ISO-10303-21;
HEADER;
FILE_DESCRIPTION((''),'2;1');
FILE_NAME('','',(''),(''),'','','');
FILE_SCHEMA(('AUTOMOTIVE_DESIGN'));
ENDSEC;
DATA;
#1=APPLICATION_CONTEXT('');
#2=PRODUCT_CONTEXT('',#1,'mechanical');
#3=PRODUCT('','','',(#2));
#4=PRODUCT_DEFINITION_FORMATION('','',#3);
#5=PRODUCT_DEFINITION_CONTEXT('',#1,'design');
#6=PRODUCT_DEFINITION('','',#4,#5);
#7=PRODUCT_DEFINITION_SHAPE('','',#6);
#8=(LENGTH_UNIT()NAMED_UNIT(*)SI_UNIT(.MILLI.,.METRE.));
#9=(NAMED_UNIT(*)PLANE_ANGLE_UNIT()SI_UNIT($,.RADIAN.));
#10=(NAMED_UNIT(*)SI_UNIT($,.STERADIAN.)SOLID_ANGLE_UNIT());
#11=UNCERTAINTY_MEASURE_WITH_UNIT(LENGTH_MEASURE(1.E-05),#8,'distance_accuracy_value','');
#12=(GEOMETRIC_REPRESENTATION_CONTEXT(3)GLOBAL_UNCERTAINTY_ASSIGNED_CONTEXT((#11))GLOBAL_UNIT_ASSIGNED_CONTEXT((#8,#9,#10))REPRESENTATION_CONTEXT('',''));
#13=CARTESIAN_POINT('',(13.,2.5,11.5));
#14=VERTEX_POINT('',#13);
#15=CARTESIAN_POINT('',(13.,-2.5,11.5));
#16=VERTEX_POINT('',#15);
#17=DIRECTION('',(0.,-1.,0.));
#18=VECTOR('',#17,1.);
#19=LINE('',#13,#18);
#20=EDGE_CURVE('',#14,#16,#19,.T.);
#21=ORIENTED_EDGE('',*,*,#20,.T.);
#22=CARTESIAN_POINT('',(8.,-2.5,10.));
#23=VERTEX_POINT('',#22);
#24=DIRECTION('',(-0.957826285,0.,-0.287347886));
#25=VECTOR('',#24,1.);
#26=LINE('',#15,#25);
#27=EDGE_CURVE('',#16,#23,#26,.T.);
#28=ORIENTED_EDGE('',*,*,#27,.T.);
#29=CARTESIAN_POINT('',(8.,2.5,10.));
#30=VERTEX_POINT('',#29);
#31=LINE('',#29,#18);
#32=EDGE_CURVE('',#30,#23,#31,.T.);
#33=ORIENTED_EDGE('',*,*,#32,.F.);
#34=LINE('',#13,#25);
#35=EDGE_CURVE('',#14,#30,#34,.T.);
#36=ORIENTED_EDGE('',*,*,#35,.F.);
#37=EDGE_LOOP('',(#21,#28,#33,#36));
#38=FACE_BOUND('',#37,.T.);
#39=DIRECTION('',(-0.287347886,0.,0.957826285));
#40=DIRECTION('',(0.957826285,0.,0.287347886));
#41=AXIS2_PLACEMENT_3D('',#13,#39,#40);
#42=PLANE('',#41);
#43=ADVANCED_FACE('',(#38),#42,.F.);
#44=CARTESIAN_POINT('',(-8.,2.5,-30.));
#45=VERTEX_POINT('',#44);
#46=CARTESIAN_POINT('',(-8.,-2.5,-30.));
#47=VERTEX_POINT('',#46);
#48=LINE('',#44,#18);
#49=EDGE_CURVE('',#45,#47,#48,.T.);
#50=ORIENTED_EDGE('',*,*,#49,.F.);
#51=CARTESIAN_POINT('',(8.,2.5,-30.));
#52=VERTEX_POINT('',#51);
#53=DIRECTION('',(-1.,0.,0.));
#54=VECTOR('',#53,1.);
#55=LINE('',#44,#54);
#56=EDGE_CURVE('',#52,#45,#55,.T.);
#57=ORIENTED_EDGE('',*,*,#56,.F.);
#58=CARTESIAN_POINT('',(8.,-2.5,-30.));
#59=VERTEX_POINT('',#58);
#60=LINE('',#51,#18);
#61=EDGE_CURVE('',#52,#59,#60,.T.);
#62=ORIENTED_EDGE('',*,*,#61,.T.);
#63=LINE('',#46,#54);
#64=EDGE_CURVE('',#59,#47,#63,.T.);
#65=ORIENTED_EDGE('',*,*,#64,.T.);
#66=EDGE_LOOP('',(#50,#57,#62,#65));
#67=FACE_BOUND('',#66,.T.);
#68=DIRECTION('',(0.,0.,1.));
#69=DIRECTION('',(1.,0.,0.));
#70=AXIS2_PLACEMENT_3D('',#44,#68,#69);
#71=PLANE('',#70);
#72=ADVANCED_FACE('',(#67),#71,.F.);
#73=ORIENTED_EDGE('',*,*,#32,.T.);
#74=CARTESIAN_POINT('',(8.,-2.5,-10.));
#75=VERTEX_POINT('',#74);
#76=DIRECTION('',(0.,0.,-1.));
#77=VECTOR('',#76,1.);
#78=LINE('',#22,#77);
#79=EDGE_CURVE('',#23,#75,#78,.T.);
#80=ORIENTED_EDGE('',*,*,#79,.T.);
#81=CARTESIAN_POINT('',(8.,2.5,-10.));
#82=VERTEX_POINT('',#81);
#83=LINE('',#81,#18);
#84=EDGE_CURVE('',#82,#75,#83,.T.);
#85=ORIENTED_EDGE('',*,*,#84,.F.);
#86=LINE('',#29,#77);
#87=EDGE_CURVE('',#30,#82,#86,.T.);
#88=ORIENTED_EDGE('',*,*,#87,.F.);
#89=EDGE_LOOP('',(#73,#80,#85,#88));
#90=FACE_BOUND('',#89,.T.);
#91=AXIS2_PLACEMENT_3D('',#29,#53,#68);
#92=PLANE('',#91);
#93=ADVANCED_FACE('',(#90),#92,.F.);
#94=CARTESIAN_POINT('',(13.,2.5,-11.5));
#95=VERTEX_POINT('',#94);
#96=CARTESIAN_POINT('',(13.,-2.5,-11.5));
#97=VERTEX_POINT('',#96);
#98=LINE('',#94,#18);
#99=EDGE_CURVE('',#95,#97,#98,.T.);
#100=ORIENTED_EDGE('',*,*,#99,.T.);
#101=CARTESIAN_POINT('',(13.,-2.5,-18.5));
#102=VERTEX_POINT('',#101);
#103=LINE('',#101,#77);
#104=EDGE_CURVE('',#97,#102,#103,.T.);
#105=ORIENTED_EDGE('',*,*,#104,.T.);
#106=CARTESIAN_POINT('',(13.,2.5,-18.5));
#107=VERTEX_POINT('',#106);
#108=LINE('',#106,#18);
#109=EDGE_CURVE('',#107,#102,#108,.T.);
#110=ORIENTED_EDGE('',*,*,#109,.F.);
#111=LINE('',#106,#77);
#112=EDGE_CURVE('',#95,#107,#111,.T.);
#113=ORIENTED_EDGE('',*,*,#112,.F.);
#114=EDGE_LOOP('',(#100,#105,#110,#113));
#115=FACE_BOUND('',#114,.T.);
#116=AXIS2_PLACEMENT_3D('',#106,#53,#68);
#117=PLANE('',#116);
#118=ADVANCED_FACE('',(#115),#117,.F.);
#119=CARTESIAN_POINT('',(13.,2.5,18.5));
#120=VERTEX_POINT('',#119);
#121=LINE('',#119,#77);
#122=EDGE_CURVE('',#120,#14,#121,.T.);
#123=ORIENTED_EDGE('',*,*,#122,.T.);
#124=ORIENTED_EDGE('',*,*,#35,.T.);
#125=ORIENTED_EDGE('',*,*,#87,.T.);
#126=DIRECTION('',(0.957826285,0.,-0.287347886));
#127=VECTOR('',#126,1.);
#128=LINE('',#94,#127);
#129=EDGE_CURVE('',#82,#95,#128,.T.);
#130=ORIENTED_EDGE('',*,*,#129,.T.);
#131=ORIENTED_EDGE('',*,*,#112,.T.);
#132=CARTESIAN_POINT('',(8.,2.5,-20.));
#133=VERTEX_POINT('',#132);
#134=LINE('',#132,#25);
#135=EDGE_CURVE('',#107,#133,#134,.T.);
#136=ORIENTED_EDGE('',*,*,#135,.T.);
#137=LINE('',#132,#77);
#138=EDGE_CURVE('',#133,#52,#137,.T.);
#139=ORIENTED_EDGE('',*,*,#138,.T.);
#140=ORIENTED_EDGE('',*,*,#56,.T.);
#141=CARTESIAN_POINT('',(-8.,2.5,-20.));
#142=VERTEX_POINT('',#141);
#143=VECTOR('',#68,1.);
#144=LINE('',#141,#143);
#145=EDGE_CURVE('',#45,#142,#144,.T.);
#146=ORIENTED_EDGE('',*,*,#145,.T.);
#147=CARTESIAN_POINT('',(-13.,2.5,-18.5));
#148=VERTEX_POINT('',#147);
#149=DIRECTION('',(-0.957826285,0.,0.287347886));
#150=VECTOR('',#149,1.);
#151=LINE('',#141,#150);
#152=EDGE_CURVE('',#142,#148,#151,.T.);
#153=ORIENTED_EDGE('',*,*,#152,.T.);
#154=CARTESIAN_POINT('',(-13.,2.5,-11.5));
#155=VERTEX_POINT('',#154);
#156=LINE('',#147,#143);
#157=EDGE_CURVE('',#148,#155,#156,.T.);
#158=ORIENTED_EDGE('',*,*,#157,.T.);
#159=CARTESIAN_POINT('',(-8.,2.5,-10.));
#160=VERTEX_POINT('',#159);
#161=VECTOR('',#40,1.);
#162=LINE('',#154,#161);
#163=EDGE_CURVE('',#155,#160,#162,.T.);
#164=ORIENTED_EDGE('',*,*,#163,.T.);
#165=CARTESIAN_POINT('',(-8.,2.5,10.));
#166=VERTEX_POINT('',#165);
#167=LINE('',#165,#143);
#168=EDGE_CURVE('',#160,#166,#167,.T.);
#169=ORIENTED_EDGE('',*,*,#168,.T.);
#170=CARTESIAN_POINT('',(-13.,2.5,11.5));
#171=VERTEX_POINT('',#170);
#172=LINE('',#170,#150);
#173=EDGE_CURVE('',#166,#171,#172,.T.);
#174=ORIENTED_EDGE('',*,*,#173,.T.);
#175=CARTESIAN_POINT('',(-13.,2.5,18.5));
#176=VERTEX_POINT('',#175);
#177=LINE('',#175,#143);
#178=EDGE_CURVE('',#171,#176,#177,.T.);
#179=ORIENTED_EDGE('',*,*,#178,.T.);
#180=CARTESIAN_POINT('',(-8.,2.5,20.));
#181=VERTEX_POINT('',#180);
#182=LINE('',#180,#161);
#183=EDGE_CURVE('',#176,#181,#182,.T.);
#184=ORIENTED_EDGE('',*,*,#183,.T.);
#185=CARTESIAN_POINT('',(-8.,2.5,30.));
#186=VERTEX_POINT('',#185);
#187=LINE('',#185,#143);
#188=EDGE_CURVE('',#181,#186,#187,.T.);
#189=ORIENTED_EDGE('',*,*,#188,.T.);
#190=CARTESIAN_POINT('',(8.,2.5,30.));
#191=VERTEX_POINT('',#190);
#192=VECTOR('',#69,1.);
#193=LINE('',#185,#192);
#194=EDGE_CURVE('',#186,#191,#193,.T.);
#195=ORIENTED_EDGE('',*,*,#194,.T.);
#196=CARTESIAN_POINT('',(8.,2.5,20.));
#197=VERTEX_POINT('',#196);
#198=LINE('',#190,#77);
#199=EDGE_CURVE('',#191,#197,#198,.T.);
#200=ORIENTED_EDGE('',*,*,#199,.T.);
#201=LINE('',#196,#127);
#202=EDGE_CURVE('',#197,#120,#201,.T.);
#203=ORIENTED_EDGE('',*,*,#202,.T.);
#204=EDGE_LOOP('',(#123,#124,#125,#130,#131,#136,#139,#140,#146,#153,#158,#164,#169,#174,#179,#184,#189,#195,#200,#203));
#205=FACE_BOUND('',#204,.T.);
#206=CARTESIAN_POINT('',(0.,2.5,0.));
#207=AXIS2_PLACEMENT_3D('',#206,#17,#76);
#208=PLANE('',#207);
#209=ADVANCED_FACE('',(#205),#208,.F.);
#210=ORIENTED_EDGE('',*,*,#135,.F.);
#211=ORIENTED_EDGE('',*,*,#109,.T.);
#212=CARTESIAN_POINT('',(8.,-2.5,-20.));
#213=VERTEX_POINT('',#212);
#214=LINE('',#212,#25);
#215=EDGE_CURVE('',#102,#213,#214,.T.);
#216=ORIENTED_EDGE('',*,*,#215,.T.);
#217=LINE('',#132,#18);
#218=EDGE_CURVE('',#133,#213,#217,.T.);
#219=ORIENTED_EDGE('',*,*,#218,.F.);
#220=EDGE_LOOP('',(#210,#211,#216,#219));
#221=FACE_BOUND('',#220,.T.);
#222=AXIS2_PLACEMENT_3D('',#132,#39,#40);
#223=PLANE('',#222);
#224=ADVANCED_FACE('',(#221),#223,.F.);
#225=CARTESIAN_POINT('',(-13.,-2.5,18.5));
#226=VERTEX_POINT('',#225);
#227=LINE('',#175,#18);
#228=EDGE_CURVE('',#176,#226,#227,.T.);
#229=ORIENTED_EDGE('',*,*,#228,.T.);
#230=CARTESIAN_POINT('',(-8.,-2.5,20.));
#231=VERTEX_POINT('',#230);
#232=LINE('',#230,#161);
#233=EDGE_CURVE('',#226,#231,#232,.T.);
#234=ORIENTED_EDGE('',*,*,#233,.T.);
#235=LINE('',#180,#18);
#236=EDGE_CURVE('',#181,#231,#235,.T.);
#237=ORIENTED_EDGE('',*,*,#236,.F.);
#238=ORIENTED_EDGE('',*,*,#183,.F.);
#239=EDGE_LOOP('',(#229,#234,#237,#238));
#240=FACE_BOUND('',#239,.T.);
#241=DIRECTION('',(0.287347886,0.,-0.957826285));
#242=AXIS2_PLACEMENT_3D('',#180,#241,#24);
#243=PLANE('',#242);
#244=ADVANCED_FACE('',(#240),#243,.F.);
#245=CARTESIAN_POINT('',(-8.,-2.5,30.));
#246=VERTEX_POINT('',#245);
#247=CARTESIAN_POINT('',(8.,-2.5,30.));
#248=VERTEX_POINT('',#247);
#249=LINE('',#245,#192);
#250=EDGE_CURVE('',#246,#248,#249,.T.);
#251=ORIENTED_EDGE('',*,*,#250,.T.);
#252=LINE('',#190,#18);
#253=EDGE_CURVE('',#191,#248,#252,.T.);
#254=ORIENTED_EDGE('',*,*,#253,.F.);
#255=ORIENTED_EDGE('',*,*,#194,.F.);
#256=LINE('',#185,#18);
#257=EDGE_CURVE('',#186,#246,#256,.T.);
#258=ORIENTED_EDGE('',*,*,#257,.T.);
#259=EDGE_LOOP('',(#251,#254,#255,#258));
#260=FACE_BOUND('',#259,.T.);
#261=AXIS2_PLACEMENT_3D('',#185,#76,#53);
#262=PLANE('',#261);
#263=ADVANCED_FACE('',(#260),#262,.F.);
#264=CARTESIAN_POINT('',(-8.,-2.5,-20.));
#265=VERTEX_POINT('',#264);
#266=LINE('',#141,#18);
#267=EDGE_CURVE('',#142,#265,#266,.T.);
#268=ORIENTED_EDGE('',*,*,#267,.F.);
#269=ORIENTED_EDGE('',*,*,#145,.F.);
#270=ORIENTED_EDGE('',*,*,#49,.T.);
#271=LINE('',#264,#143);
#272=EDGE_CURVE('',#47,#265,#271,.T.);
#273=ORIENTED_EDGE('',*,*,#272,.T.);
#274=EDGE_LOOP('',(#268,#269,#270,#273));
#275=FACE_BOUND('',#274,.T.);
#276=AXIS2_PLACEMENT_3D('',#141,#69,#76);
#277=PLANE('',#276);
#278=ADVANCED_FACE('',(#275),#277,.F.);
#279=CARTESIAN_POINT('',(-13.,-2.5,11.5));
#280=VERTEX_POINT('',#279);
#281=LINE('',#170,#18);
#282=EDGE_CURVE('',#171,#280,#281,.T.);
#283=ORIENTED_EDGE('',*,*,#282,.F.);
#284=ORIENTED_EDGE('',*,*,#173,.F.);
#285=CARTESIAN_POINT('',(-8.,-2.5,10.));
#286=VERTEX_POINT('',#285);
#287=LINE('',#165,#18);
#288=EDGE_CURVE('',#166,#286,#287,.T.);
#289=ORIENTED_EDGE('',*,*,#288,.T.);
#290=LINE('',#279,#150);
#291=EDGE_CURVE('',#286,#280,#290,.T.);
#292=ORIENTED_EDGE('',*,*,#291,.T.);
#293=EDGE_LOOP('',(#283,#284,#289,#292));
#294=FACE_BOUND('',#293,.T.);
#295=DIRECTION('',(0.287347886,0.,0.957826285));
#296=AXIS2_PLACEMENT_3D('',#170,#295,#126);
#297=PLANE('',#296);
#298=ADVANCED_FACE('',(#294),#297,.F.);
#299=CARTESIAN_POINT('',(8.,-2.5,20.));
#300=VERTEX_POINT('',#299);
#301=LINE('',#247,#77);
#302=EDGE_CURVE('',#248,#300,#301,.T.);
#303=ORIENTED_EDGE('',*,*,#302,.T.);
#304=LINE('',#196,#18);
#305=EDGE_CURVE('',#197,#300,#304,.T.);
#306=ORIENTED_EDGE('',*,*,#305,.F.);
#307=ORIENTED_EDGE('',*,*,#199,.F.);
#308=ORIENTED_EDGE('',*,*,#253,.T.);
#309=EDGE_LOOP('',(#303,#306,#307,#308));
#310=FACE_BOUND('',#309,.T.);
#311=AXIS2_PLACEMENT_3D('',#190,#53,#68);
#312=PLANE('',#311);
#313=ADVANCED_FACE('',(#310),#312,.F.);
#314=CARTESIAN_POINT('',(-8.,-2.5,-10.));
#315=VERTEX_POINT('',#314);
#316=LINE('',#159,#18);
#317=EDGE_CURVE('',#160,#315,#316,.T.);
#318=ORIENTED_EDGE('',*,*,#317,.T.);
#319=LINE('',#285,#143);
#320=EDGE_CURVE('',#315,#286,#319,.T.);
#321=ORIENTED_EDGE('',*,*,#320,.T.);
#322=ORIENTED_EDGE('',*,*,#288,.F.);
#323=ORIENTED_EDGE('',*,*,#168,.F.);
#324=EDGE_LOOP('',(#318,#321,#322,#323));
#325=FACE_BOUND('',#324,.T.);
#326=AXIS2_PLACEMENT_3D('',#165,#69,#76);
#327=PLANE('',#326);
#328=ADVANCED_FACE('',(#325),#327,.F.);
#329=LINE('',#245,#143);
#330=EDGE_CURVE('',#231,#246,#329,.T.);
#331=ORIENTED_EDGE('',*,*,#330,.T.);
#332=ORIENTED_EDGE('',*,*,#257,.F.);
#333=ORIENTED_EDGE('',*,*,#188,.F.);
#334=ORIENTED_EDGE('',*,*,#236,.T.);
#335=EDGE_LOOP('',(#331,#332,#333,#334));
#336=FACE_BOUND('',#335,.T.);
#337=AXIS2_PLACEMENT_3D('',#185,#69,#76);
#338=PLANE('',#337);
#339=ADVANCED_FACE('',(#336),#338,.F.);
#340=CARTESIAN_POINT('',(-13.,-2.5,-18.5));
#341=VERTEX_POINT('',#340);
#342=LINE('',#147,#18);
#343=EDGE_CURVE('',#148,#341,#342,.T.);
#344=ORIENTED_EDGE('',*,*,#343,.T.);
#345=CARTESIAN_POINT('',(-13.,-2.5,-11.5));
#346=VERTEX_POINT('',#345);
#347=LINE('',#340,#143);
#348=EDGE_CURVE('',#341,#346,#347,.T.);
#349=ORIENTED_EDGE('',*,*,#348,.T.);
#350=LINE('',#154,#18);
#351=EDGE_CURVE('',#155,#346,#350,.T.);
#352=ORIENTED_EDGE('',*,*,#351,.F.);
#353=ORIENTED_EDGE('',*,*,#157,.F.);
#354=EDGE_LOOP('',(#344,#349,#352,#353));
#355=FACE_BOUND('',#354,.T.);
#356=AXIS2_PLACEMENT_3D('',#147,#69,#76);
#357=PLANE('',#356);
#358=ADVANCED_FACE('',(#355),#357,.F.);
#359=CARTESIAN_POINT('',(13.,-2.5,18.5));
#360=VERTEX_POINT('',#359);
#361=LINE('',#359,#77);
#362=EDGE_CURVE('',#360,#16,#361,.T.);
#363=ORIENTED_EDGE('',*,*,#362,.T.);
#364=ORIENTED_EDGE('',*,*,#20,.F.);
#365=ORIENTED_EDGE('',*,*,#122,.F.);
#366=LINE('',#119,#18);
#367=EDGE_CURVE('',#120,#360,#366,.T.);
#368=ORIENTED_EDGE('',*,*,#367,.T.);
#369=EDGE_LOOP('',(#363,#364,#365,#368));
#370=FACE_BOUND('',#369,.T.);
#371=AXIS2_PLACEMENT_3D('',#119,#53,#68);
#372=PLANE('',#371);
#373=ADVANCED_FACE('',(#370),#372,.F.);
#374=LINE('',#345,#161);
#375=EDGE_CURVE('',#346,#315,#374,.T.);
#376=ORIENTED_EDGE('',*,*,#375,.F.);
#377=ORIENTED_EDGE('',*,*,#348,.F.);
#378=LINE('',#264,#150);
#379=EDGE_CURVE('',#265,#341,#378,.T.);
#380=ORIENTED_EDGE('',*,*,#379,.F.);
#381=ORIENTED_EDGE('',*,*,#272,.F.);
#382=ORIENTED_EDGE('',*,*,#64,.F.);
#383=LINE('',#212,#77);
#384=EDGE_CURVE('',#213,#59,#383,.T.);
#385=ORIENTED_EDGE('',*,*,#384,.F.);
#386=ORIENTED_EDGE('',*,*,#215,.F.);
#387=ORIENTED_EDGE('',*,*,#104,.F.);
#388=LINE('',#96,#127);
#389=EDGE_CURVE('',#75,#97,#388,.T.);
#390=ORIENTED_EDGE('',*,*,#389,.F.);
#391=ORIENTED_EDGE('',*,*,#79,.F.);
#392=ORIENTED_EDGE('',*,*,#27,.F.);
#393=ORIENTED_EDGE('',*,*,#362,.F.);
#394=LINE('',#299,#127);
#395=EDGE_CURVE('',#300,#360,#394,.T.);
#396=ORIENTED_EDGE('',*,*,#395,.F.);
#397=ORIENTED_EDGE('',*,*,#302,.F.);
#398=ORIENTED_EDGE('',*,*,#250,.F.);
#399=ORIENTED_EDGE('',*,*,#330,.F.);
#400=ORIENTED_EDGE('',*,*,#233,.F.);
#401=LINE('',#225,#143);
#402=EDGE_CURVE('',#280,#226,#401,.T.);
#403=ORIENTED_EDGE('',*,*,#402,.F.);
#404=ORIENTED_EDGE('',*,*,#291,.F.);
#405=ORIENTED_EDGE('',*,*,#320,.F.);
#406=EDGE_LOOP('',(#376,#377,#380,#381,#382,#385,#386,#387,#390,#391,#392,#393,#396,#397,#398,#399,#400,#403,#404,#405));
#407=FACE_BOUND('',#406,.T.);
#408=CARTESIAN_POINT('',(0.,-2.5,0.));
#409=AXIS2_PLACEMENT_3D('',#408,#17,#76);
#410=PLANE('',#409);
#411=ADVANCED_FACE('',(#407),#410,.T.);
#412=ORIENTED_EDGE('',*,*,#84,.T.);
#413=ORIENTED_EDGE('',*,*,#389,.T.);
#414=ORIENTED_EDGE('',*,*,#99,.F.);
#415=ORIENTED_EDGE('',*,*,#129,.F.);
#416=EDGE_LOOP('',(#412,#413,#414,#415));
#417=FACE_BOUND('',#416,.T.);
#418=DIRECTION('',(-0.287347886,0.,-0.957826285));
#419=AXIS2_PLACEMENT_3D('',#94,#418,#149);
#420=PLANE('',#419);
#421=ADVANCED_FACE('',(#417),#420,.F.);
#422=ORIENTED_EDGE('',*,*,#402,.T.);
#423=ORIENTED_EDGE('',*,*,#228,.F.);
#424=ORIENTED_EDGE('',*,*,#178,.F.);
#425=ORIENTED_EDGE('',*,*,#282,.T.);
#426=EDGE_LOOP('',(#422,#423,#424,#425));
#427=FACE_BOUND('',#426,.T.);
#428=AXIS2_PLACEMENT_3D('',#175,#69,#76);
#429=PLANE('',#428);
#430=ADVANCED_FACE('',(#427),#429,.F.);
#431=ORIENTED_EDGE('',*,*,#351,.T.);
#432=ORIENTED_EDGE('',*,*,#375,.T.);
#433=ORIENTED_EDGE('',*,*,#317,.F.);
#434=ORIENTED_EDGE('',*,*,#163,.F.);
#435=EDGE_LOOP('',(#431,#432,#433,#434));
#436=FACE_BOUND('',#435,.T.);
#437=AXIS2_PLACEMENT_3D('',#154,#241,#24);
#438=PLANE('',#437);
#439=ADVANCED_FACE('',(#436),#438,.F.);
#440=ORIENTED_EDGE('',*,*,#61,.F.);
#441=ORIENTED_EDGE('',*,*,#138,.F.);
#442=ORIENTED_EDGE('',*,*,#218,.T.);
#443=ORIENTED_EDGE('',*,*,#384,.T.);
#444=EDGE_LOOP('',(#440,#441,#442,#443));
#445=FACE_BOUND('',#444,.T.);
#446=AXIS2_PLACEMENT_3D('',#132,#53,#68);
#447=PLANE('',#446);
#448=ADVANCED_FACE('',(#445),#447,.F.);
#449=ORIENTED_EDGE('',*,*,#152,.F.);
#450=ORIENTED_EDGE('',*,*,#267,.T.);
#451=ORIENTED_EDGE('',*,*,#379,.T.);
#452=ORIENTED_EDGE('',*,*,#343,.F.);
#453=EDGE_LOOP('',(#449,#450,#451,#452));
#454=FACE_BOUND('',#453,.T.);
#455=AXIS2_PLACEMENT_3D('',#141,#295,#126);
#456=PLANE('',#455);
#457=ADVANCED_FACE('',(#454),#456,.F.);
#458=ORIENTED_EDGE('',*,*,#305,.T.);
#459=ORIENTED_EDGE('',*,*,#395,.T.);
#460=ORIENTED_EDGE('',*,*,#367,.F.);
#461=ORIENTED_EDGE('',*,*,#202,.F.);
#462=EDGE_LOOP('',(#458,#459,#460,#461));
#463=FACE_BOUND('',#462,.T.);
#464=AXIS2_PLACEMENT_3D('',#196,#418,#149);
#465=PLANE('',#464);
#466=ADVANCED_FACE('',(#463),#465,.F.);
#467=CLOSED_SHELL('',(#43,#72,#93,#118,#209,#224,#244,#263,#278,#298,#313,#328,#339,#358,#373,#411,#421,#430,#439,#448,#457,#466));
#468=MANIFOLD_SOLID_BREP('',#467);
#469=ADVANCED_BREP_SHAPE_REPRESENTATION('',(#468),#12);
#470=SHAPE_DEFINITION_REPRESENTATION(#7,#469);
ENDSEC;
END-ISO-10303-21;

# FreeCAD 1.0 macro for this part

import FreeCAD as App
import Part
import Sketcher
from FreeCAD import Vector


def add_polygon(sketch, points):
    """Adds a closed chain of lines whose ends are joined by coincident constraints."""
    first, n = sketch.GeometryCount, len(points)
    for a, b in zip(points, points[1:] + points[:1]):
        sketch.addGeometry(Part.LineSegment(App.Vector(*a, 0), App.Vector(*b, 0)), False)
    for i in range(n):
        sketch.addConstraint(Sketcher.Constraint("Coincident", first + i, 2, first + (i + 1) % n, 1))

doc = App.newDocument("Part")
body = doc.addObject("PartDesign::Body", "Body")

sketch1 = body.newObject("Sketcher::SketchObject", "Sketch")
sketch1.AttachmentSupport = (doc.getObject("XZ_Plane"), [""])
sketch1.MapMode = "FlatFace"
add_polygon(sketch1, [(-8, 30), (8, 30), (8, 20), (13, 18), (13, 12), (8, 10), (8, -10), (13, -12), (13, -18), (8, -20), (8, -30), (-8, -30), (-8, -20), (-13, -18), (-13, -12), (-8, -10), (-8, 10), (-13, 12), (-13, 18), (-8, 20)])
sketch1.addConstraint(Sketcher.Constraint("Horizontal", 0))
sketch1.addConstraint(Sketcher.Constraint("Vertical", 1))
sketch1.addConstraint(Sketcher.Constraint("Vertical", 3))
sketch1.addConstraint(Sketcher.Constraint("Vertical", 5))
sketch1.addConstraint(Sketcher.Constraint("Vertical", 7))
sketch1.addConstraint(Sketcher.Constraint("Vertical", 9))
sketch1.addConstraint(Sketcher.Constraint("Horizontal", 10))
sketch1.addConstraint(Sketcher.Constraint("Vertical", 11))
sketch1.addConstraint(Sketcher.Constraint("Vertical", 13))
sketch1.addConstraint(Sketcher.Constraint("Vertical", 15))
sketch1.addConstraint(Sketcher.Constraint("Vertical", 17))
sketch1.addConstraint(Sketcher.Constraint("Vertical", 19))
sketch1.addConstraint(Sketcher.Constraint("Symmetric", 0, 2, 10, 2, -1, 1))
sketch1.addConstraint(Sketcher.Constraint("Symmetric", 2, 2, 12, 2, -1, 1))
sketch1.addConstraint(Sketcher.Constraint("Symmetric", 4, 2, 14, 2, -1, 1))
sketch1.addConstraint(Sketcher.Constraint("Symmetric", 6, 2, 16, 2, -1, 1))
sketch1.addConstraint(Sketcher.Constraint("Symmetric", 8, 2, 18, 2, -1, 1))
sketch1.addConstraint(Sketcher.Constraint("Symmetric", 8, 2, 11, 2, -2))
sketch1.addConstraint(Sketcher.Constraint("Symmetric", 7, 2, 12, 2, -2))
sketch1.addConstraint(Sketcher.Constraint("Parallel", 2, 6))
sketch1.addConstraint(Sketcher.Constraint("Parallel", 4, 8))
sketch1.addConstraint(Sketcher.Constraint("Parallel", 6, 12))
sketch1.addConstraint(Sketcher.Constraint("Parallel", 8, 14))
sketch1.addConstraint(Sketcher.Constraint("Parallel", 12, 16))
sketch1.addConstraint(Sketcher.Constraint("Parallel", 14, 18))
sketch1.addConstraint(Sketcher.Constraint("Horizontal", 6, 2, 13, 2))
sketch1.addConstraint(Sketcher.Constraint("Vertical", 1, 2, 4, 2))
sketch1.addConstraint(Sketcher.Constraint("DistanceX", 0, 1, 0, 2, 16.0))
sketch1.addConstraint(Sketcher.Constraint("DistanceY", 1, 2, 1, 1, 10.0))
sketch1.addConstraint(Sketcher.Constraint("DistanceY", 3, 2, 3, 1, 7.0))
sketch1.addConstraint(Sketcher.Constraint("DistanceY", 5, 2, 5, 1, 20.0))
sketch1.addConstraint(Sketcher.Constraint("DistanceY", -1, 1, 0, 2, 30.0))
sketch1.addConstraint(Sketcher.Constraint("DistanceX", -1, 1, 2, 2, 13.0))
pad1 = body.newObject("PartDesign::Pad", "Pad")
pad1.Profile = sketch1
pad1.Length = 5
pad1.Midplane = True

doc.recompute()
